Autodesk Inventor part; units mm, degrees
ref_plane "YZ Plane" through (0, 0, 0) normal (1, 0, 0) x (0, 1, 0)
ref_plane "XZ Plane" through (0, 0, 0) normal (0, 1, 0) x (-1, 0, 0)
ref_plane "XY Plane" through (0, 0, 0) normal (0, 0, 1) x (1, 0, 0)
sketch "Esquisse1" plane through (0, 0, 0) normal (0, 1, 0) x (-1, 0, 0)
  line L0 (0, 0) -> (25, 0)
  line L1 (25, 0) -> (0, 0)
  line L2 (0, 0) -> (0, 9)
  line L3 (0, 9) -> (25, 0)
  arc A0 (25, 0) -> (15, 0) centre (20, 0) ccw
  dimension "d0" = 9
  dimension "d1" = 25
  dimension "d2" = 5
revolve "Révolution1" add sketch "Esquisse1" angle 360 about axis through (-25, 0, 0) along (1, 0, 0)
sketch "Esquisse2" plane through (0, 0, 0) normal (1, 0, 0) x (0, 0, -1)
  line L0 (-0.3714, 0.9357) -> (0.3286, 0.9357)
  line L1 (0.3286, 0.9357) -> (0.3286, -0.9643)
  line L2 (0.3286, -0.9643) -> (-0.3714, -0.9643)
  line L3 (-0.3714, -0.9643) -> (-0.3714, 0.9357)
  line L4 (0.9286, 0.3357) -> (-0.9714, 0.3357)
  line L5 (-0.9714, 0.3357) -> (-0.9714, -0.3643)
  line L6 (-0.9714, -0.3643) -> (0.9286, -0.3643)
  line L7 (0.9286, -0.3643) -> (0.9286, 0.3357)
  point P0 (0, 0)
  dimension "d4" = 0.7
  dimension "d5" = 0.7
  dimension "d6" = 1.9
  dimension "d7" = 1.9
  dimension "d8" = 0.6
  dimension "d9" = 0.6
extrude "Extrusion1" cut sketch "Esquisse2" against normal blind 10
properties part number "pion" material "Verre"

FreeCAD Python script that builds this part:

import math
import FreeCAD as App
import Part
import Sketcher

V = App.Vector
Q = App.Units.Quantity

doc = App.newDocument("Part")
body = doc.addObject("PartDesign::Body", "Body")

# Sketch on XZ plane
sketch1 = doc.addObject("Sketcher::SketchObject", "Sketch")
body.addObject(sketch1)
sketch1.AttachmentSupport = (doc.XZ_Plane, [""])
sketch1.MapMode = "FlatFace"
sketch1.addGeometry([
    Part.LineSegment(V(0, 9, 0), V(0, 0, 0)),
    Part.LineSegment(V(0, 0, 0), V(-25, 0, 0)),
    Part.ArcOfCircle(Part.Circle(V(-20, 0, 0), V(0, 0, 1), 5), math.radians(39.597753), math.radians(180)),
    Part.LineSegment(V(-16.147309, 3.186969, 0), V(0, 9, 0)),
], False)
sketch1.addConstraint([
    Sketcher.Constraint("Coincident", 0, 2, 1, 1),
    Sketcher.Constraint("Coincident", 1, 2, 2, 2),
    Sketcher.Constraint("Coincident", 2, 1, 3, 1),
    Sketcher.Constraint("Coincident", 3, 2, 0, 1),
    Sketcher.Constraint("Vertical", 0),
    Sketcher.Constraint("Horizontal", 1),
    Sketcher.Constraint("Coincident", 0, 2, -1, 1),
    Sketcher.Constraint("PointOnObject", 2, 3, -1),
    Sketcher.Constraint("Radius", 2, 5.0),
    Sketcher.Constraint("DistanceX", 1, 2, 1, 1, 25.0),
    Sketcher.Constraint("DistanceY", 0, 2, 0, 1, 9.0),
    Sketcher.Constraint("Angle", 3, Q("19.7989 deg")),
])
revolution = doc.addObject("PartDesign::Revolution", "Revolution")
body.addObject(revolution)
revolution.Profile = sketch1
revolution.ReferenceAxis = (sketch1, ["H_Axis"])
revolution.Angle = 360

# Sketch on YZ plane
sketch2 = doc.addObject("Sketcher::SketchObject", "Sketch001")
body.addObject(sketch2)
sketch2.AttachmentSupport = (doc.YZ_Plane, [""])
sketch2.MapMode = "FlatFace"
sketch2.addGeometry([
    Part.LineSegment(V(0.9357, -0.3286, 0), V(0.9357, 0.3714, 0)),  # 0
    Part.LineSegment(V(0.9357, 0.3714, 0), V(0.3357, 0.3714, 0)),  # 1
    Part.LineSegment(V(0.3357, 0.3714, 0), V(0.3357, 0.9714, 0)),  # 2
    Part.LineSegment(V(0.3357, 0.9714, 0), V(-0.3643, 0.9714, 0)),  # 3
    Part.LineSegment(V(-0.3643, 0.9714, 0), V(-0.3643, 0.3714, 0)),  # 4
    Part.LineSegment(V(-0.3643, 0.3714, 0), V(-0.9643, 0.3714, 0)),  # 5
    Part.LineSegment(V(-0.9643, 0.3714, 0), V(-0.9643, -0.3286, 0)),  # 6
    Part.LineSegment(V(-0.9643, -0.3286, 0), V(-0.3643, -0.3286, 0)),  # 7
    Part.LineSegment(V(-0.3643, -0.3286, 0), V(-0.3643, -0.9286, 0)),  # 8
    Part.LineSegment(V(-0.3643, -0.9286, 0), V(0.3357, -0.9286, 0)),  # 9
    Part.LineSegment(V(0.3357, -0.9286, 0), V(0.3357, -0.3286, 0)),  # 10
    Part.LineSegment(V(0.3357, -0.3286, 0), V(0.9357, -0.3286, 0)),  # 11
], False)
sketch2.addConstraint([
    Sketcher.Constraint("Coincident", 0, 2, 1, 1),
    Sketcher.Constraint("Coincident", 1, 2, 2, 1),
    Sketcher.Constraint("Coincident", 2, 2, 3, 1),
    Sketcher.Constraint("Coincident", 3, 2, 4, 1),
    Sketcher.Constraint("Coincident", 4, 2, 5, 1),
    Sketcher.Constraint("Coincident", 5, 2, 6, 1),
    Sketcher.Constraint("Coincident", 6, 2, 7, 1),
    Sketcher.Constraint("Coincident", 7, 2, 8, 1),
    Sketcher.Constraint("Coincident", 8, 2, 9, 1),
    Sketcher.Constraint("Coincident", 9, 2, 10, 1),
    Sketcher.Constraint("Coincident", 10, 2, 11, 1),
    Sketcher.Constraint("Coincident", 11, 2, 0, 1),
    Sketcher.Constraint("Vertical", 0),
    Sketcher.Constraint("Horizontal", 1),
    Sketcher.Constraint("Vertical", 2),
    Sketcher.Constraint("Horizontal", 3),
    Sketcher.Constraint("Vertical", 4),
    Sketcher.Constraint("Horizontal", 5),
    Sketcher.Constraint("Vertical", 6),
    Sketcher.Constraint("Horizontal", 7),
    Sketcher.Constraint("Vertical", 8),
    Sketcher.Constraint("Horizontal", 9),
    Sketcher.Constraint("Vertical", 10),
    Sketcher.Constraint("Horizontal", 11),
    Sketcher.Constraint("Horizontal", 1, 2, 4, 2),
    Sketcher.Constraint("Horizontal", 7, 2, 10, 2),
    Sketcher.Constraint("Vertical", 4, 2, 7, 2),
    Sketcher.Constraint("Vertical", 2, 2, 9, 2),
    Sketcher.Constraint("Equal", 1, 5),
    Sketcher.Constraint("Equal", 9, 0),
    Sketcher.Constraint("Equal", 11, 2),
    Sketcher.Constraint("Equal", 4, 8),
    Sketcher.Constraint("DistanceX", 1, 2, 1, 1, 0.6),
    Sketcher.Constraint("DistanceX", 3, 2, 3, 1, 0.7),
    Sketcher.Constraint("DistanceX", -1, 1, 0, 2, 0.9357),
    Sketcher.Constraint("DistanceY", -1, 1, 0, 2, 0.3714),
])
pocket1 = doc.addObject("PartDesign::Pocket", "Pocket")
body.addObject(pocket1)
pocket1.Profile = sketch2
pocket1.Length = 10

doc.recompute()
